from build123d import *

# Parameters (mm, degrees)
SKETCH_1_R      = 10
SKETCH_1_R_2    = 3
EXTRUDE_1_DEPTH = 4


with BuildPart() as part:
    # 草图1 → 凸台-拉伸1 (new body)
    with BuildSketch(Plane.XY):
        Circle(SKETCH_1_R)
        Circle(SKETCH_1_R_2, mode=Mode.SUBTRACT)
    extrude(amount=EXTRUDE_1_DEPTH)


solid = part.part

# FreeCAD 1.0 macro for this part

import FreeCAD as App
import Part
import Sketcher
Q = App.Units.Quantity

doc = App.newDocument("Part")
body = doc.addObject("PartDesign::Body", "Body")

sketch1 = doc.addObject("Sketcher::SketchObject", "Sketch")
body.addObject(sketch1)
sketch1.AttachmentSupport = (doc.XY_Plane, [""])
sketch1.MapMode = "FlatFace"
sketch1.addGeometry(Part.Circle(App.Vector(0, 0, 0), App.Vector(0, 0, 1), 10), False)
sketch1.addGeometry(Part.Circle(App.Vector(0, 0, 0), App.Vector(0, 0, 1), 3), False)
sketch1.addConstraint(Sketcher.Constraint("Coincident", 0, 3, -1, 1))
sketch1.addConstraint(Sketcher.Constraint("Coincident", 1, 3, -1, 1))
sketch1.addConstraint(Sketcher.Constraint("Diameter", 0, Q("20 mm")))
sketch1.addConstraint(Sketcher.Constraint("Diameter", 1, Q("6 mm")))
pad1 = doc.addObject("PartDesign::Pad", "Pad")
body.addObject(pad1)
pad1.Profile = sketch1
pad1.Length = 4

doc.recompute()
